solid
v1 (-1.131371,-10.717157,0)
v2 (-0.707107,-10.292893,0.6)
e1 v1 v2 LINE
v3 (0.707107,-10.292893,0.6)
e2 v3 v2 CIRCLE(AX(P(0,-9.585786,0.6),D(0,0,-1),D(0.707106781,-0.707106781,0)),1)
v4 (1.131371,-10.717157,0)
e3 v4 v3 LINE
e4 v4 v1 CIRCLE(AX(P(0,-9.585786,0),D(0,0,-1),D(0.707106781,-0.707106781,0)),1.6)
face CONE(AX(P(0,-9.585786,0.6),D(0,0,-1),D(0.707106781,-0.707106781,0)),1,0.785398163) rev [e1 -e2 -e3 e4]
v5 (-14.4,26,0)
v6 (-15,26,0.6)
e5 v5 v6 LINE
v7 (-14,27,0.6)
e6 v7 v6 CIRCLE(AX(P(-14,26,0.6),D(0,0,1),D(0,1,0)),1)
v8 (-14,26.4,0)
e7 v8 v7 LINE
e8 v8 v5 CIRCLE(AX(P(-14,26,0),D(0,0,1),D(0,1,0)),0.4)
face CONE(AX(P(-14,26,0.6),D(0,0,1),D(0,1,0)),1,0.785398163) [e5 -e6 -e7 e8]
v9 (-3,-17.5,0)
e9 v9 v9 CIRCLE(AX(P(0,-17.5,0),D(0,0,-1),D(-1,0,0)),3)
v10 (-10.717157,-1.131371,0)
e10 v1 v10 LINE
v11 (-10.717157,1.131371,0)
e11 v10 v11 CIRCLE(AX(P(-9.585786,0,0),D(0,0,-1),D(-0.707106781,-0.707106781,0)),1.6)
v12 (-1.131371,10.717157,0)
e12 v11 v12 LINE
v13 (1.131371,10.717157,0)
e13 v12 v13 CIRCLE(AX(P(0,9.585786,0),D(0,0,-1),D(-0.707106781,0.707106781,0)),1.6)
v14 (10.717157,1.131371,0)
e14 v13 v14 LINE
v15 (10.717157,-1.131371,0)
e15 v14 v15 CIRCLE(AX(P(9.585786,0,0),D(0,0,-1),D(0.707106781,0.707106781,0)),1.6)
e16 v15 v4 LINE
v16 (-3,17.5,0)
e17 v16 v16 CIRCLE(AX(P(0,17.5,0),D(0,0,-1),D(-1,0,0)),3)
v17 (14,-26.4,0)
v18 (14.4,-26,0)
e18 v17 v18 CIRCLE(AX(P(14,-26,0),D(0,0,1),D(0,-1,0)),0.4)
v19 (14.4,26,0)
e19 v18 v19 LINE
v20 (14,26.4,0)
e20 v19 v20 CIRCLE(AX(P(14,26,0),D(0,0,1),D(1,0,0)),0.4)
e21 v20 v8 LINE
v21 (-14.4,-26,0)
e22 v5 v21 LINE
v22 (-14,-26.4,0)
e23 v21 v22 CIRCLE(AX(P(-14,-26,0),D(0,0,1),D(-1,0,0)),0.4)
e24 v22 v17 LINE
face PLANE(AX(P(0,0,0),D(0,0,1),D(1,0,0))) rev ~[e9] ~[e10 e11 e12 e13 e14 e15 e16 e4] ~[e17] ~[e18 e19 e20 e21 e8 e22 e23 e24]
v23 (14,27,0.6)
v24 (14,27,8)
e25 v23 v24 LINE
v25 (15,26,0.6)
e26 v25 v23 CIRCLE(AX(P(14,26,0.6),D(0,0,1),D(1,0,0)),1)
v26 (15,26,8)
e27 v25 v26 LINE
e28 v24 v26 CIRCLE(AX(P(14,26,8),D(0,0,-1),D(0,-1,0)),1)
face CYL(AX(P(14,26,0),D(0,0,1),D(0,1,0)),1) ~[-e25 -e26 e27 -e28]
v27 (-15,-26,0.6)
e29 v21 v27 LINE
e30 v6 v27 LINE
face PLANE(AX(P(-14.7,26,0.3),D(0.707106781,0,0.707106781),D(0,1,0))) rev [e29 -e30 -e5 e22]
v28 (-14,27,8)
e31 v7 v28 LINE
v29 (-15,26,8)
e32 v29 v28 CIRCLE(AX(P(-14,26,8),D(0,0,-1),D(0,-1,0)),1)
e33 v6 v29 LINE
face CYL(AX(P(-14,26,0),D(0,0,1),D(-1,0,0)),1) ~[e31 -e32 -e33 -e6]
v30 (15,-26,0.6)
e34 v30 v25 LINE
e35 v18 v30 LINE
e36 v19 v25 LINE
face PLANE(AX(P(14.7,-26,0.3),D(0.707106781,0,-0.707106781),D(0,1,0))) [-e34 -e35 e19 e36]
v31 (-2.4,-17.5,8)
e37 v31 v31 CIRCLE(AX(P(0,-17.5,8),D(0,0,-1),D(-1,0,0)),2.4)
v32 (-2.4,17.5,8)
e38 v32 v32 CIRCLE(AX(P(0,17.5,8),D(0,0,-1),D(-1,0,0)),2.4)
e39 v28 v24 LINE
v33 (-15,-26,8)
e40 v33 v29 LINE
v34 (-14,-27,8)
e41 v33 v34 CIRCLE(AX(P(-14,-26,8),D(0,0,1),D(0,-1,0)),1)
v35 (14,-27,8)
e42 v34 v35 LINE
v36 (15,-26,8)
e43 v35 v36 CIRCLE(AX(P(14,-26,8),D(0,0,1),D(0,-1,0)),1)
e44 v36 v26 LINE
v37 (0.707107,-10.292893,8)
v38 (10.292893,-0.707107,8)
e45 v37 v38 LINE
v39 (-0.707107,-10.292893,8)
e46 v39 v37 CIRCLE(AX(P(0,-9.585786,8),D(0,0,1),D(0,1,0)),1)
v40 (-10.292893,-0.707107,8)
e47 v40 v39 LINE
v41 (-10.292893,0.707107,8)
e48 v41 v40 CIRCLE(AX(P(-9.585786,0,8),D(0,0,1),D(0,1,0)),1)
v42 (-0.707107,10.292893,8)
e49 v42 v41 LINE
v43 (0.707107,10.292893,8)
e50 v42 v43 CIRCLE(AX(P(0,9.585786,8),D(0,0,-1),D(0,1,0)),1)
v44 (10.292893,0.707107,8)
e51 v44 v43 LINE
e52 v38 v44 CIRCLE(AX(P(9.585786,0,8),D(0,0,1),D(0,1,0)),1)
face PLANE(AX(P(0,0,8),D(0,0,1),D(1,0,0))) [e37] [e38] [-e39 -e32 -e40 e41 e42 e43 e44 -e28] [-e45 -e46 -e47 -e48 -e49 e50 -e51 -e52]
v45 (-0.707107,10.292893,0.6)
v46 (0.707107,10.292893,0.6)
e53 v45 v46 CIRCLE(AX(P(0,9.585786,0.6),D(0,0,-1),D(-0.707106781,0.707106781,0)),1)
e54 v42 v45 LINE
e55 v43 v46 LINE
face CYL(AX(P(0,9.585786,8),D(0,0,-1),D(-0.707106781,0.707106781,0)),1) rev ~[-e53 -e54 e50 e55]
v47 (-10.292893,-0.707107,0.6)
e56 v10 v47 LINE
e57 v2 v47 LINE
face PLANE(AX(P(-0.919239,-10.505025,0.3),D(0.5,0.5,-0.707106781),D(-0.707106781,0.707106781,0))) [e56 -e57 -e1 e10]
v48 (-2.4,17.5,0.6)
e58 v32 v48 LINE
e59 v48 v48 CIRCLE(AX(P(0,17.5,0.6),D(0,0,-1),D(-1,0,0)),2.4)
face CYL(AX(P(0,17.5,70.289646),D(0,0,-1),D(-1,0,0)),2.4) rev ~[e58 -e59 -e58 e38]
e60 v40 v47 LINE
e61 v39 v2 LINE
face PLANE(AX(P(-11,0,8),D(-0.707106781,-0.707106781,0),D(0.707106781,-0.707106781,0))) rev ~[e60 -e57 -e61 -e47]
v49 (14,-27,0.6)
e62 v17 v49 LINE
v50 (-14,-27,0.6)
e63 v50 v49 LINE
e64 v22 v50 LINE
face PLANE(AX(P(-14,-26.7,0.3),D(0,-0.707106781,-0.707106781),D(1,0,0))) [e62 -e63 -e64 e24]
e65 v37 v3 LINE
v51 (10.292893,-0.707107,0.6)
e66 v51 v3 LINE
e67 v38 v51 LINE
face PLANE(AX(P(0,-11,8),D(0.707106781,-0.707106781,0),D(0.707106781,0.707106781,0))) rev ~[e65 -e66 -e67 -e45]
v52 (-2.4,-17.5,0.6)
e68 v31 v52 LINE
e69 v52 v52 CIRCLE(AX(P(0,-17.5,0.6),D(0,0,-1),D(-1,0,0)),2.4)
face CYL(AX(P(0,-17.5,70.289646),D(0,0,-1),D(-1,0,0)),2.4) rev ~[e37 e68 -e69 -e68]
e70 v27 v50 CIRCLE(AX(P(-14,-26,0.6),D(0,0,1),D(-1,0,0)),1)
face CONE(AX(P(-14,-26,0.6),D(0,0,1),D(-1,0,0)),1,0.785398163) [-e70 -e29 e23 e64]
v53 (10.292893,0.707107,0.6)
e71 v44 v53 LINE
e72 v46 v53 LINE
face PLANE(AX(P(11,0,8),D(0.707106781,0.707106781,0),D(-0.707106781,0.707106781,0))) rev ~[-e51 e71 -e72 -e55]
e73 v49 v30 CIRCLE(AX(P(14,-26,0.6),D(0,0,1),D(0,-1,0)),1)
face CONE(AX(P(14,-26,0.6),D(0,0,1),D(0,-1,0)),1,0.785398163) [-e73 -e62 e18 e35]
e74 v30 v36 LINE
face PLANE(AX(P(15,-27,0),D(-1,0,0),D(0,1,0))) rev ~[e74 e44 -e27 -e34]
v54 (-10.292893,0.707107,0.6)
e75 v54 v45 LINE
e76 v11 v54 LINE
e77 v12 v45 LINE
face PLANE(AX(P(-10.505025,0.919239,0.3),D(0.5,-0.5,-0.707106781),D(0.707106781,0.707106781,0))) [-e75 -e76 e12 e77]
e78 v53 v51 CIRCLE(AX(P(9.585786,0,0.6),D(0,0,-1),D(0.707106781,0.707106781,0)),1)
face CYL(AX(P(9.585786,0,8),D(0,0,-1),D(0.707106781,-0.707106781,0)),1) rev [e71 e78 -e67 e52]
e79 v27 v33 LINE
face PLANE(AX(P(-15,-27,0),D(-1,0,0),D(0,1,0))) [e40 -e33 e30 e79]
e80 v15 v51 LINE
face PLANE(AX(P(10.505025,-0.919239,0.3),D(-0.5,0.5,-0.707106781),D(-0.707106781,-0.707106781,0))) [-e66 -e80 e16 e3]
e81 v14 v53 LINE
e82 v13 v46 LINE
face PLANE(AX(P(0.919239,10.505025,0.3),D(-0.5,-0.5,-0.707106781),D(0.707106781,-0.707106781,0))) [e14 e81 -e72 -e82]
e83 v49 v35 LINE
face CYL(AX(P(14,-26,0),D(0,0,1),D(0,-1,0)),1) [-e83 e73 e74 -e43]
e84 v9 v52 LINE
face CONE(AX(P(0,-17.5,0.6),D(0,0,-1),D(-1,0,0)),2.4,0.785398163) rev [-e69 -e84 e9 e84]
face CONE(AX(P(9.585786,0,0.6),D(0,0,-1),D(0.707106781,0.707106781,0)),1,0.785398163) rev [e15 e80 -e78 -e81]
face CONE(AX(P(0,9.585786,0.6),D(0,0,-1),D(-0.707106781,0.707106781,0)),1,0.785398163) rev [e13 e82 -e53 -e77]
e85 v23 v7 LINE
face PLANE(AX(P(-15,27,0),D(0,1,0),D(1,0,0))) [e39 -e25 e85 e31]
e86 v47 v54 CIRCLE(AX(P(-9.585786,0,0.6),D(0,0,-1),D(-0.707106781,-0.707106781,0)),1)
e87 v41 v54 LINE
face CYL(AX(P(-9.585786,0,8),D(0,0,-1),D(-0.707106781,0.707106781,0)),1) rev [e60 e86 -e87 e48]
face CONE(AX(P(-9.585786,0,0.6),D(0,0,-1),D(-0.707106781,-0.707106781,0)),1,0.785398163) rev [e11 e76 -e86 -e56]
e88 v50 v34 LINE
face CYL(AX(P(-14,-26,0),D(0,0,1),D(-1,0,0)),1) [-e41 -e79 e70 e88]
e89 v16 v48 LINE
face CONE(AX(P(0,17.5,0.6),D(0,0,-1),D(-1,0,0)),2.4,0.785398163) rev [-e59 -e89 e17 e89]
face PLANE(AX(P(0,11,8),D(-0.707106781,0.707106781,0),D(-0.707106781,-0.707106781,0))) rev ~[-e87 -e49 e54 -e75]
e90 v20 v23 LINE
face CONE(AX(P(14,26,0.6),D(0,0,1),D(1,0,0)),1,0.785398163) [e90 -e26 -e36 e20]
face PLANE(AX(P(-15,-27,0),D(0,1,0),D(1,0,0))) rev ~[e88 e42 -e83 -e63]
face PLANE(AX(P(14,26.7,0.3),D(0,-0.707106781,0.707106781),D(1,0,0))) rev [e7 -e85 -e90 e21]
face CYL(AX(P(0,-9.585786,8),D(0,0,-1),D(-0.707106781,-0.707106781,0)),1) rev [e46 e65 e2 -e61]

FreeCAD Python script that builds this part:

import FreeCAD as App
import Part
import Sketcher

V = App.Vector
Q = App.Units.Quantity


def edges_at(feature, points):
    """Names of the edges that pass closest to the given points."""
    edges = feature.Shape.Edges
    near = lambda p: min(range(len(edges)), key=lambda i: edges[i].distToShape(Part.Vertex(*p))[0])
    return sorted({f"Edge{near(p) + 1}" for p in points})


def add_polygon(sketch, points):
    """Adds a closed chain of lines whose ends are joined by coincident constraints."""
    first, n = sketch.GeometryCount, len(points)
    for a, b in zip(points, points[1:] + points[:1]):
        sketch.addGeometry(Part.LineSegment(App.Vector(*a, 0), App.Vector(*b, 0)), False)
    for i in range(n):
        sketch.addConstraint(Sketcher.Constraint("Coincident", first + i, 2, first + (i + 1) % n, 1))

doc = App.newDocument("Part")
body = doc.addObject("PartDesign::Body", "Body")

# Sketch on XY plane
sketch1 = body.newObject("Sketcher::SketchObject", "Sketch")
sketch1.AttachmentSupport = (doc.getObject("XY_Plane"), [""])
sketch1.MapMode = "FlatFace"
add_polygon(sketch1, [(-15, 27), (-15, -27), (15, -27), (15, 27)])  # lines 0-3
sketch1.addConstraint(Sketcher.Constraint("Vertical", 0))
sketch1.addConstraint(Sketcher.Constraint("Horizontal", 1))
sketch1.addConstraint(Sketcher.Constraint("Vertical", 2))
sketch1.addConstraint(Sketcher.Constraint("Horizontal", 3))
sketch1.addConstraint(Sketcher.Constraint("Symmetric", 0, 2, 2, 2, -1, 1))
sketch1.addConstraint(Sketcher.Constraint("DistanceX", 1, 1, 1, 2, Q("30 mm")))
sketch1.addConstraint(Sketcher.Constraint("DistanceY", 0, 2, 0, 1, Q("54 mm")))
pad1 = body.newObject("PartDesign::Pad", "Pad")
pad1.Profile = sketch1
pad1.Length = 8

# Sketch on XY plane
sketch2 = body.newObject("Sketcher::SketchObject", "Sketch001")
sketch2.AttachmentSupport = (doc.getObject("XY_Plane"), [""])
sketch2.MapMode = "FlatFace"
sketch2.AttachmentOffset = App.Placement(V(0, 0, 8), App.Rotation())
sketch2.addGeometry(Part.Circle(V(0, 17.5, 0), V(0, 0, 1), 2.4), False)
sketch2.addGeometry(Part.Circle(V(0, -17.5, 0), V(0, 0, 1), 2.4), False)
sketch2.addConstraint(Sketcher.Constraint("Equal", 0, 1))
sketch2.addConstraint(Sketcher.Constraint("Symmetric", 0, 3, 1, 3, -1, 1))
sketch2.addConstraint(Sketcher.Constraint("PointOnObject", 0, 3, -2))
sketch2.addConstraint(Sketcher.Constraint("Diameter", 0, Q("4.8 mm")))
sketch2.addConstraint(Sketcher.Constraint("DistanceY", 1, 3, 0, 3, Q("35 mm")))
doc.recompute()
hole = body.newObject("PartDesign::Hole", "Hole")
hole.Profile = sketch2
hole.ThreadType = "None"
hole.Diameter = 4.8
hole.DepthType = "ThroughAll"

# Sketch on XY plane
sketch3 = body.newObject("Sketcher::SketchObject", "Sketch002")
sketch3.AttachmentSupport = (doc.getObject("XY_Plane"), [""])
sketch3.MapMode = "FlatFace"
sketch3.AttachmentOffset = App.Placement(V(0, 0, 8), App.Rotation())
add_polygon(sketch3, [(11, 0), (0, 11), (-11, 0), (0, -11)])  # lines 0-3
sketch3.addConstraint(Sketcher.Constraint("Symmetric", 0, 2, 2, 2, -1, 1))
sketch3.addConstraint(Sketcher.Constraint("Symmetric", 1, 2, 3, 2, -1, 1))
sketch3.addConstraint(Sketcher.Constraint("PointOnObject", 0, 2, -2))
sketch3.addConstraint(Sketcher.Constraint("PointOnObject", 1, 2, -1))
sketch3.addConstraint(Sketcher.Constraint("Perpendicular", 0, 1))
sketch3.addConstraint(Sketcher.Constraint("DistanceY", -1, 1, 0, 2, Q("11 mm")))
pocket1 = body.newObject("PartDesign::Pocket", "Pocket")
pocket1.Profile = sketch3
pocket1.Type = "UpToFirst"
doc.recompute()

fillet = body.newObject("PartDesign::Fillet", "Fillet")
fillet.Base = (pocket1, edges_at(pocket1, [
    (11, 0, 4),
    (0, -11, 4),
    (-11, 0, 4),
    (0, 11, 4),
    (-15, 27, 4),
    (15, 27, 4),
    (15, -27, 4),
    (-15, -27, 4),
]))
fillet.Radius = 1
doc.recompute()

chamfer = body.newObject("PartDesign::Chamfer", "Chamfer")
chamfer.Base = (fillet, edges_at(fillet, [
    (2.4, -17.5, 0),
    (2.4, 17.5, 0),
    (5.5, -5.5, 0),
    (-5.5, -5.5, 0),
    (5.5, 5.5, 0),
    (-5.5, 5.5, 0),
    (15, 0, 0),
    (-15, 0, 0),
    (0, 27, 0),
    (0, -27, 0),
    (-14.707, 26.707, 0),
    (14.707, 26.707, 0),
    (-14.707, -26.707, 0),
    (14.707, -26.707, 0),
    (0, -10.586, 0),
    (10.586, 0, 0),
    (0, 10.586, 0),
    (-10.586, 0, 0),
]))
chamfer.Size = 0.6

doc.recompute()
